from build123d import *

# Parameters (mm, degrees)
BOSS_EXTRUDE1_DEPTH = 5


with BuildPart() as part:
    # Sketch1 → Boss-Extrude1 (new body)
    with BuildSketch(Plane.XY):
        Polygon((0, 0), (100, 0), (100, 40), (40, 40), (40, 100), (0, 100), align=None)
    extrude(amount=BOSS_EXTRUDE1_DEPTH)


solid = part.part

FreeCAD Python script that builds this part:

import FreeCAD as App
import Part
import Sketcher

V = App.Vector


def add_polygon(sketch, points):
    """Adds a closed chain of lines whose ends are joined by coincident constraints."""
    first, n = sketch.GeometryCount, len(points)
    for a, b in zip(points, points[1:] + points[:1]):
        sketch.addGeometry(Part.LineSegment(App.Vector(*a, 0), App.Vector(*b, 0)), False)
    for i in range(n):
        sketch.addConstraint(Sketcher.Constraint("Coincident", first + i, 2, first + (i + 1) % n, 1))

doc = App.newDocument("Part")
body = doc.addObject("PartDesign::Body", "Body")

sketch1 = body.newObject("Sketcher::SketchObject", "Sketch")
sketch1.AttachmentSupport = (doc.getObject("XY_Plane"), [""])
sketch1.MapMode = "FlatFace"
add_polygon(sketch1, [(0, 0), (100, 0), (100, 40), (40, 40), (40, 100), (0, 100)])
sketch1.addConstraint([
    Sketcher.Constraint("Horizontal", 0),
    Sketcher.Constraint("Vertical", 1),
    Sketcher.Constraint("Horizontal", 2),
    Sketcher.Constraint("Vertical", 3),
    Sketcher.Constraint("Horizontal", 4),
    Sketcher.Constraint("Vertical", 5),
    Sketcher.Constraint("Coincident", 5, 2, -1, 1),
    Sketcher.Constraint("Equal", 4, 1),
    Sketcher.Constraint("Equal", 2, 3),
    Sketcher.Constraint("DistanceX", 0, 1, 0, 2, 100.0),
    Sketcher.Constraint("DistanceX", 2, 2, 2, 1, 60.0),
])
pad1 = body.newObject("PartDesign::Pad", "Pad")
pad1.Profile = sketch1
pad1.Length = 5

doc.recompute()
